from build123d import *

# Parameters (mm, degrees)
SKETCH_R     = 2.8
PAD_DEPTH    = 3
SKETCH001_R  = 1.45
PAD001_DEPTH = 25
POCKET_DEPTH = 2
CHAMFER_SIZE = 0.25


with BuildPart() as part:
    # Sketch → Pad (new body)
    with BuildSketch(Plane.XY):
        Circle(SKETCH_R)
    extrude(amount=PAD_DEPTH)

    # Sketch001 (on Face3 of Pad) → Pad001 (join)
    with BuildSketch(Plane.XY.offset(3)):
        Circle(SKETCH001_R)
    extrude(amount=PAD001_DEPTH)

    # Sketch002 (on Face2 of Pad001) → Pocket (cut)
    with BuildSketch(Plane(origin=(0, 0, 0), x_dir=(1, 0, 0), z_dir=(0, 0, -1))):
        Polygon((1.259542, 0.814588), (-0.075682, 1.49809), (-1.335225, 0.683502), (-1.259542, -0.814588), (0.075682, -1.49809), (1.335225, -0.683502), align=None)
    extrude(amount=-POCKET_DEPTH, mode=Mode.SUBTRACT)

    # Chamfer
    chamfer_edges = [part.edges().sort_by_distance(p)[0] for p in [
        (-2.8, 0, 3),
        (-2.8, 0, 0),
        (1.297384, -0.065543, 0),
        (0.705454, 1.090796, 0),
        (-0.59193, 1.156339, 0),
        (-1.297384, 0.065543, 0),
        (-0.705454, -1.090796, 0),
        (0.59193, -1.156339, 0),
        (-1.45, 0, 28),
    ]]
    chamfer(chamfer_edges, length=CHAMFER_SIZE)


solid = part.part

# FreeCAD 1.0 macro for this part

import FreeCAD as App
import Part
import Sketcher
from FreeCAD import Vector
Q = App.Units.Quantity


def edges_at(feature, points):
    """Names of the edges that pass closest to the given points."""
    edges = feature.Shape.Edges
    near = lambda p: min(range(len(edges)), key=lambda i: edges[i].distToShape(Part.Vertex(*p))[0])
    return sorted({f"Edge{near(p) + 1}" for p in points})


def add_polygon(sketch, points):
    """Adds a closed chain of lines whose ends are joined by coincident constraints."""
    first, n = sketch.GeometryCount, len(points)
    for a, b in zip(points, points[1:] + points[:1]):
        sketch.addGeometry(Part.LineSegment(App.Vector(*a, 0), App.Vector(*b, 0)), False)
    for i in range(n):
        sketch.addConstraint(Sketcher.Constraint("Coincident", first + i, 2, first + (i + 1) % n, 1))

doc = App.newDocument("Part")
body = doc.addObject("PartDesign::Body", "Body")

# Sketch on XY plane
sketch1 = body.newObject("Sketcher::SketchObject", "Sketch")
sketch1.AttachmentSupport = (doc.getObject("XY_Plane"), [""])
sketch1.MapMode = "FlatFace"
sketch1.addGeometry(Part.Circle(Vector(0, 0, 0), Vector(0, 0, 1), 2.8), False)
sketch1.addConstraint([
    Sketcher.Constraint("Coincident", 0, 3, -1, 1),
    Sketcher.Constraint("Diameter", 0, Q("5.6 mm")),
])
pad1 = body.newObject("PartDesign::Pad", "Pad")
pad1.Profile = sketch1
pad1.Length = 3

# Sketch on XY plane
sketch2 = body.newObject("Sketcher::SketchObject", "Sketch001")
sketch2.AttachmentSupport = (doc.getObject("XY_Plane"), [""])
sketch2.MapMode = "FlatFace"
sketch2.AttachmentOffset = App.Placement(Vector(0, 0, 3), App.Rotation())
sketch2.addGeometry(Part.Circle(Vector(0, 0, 0), Vector(0, 0, 1), 1.4), False)
sketch2.addConstraint([
    Sketcher.Constraint("Coincident", 0, 3, -1, 1),
    Sketcher.Constraint("Diameter", 0, Q("2.9 mm")),
])
pad2 = body.newObject("PartDesign::Pad", "Pad001")
pad2.Profile = sketch2
pad2.Length = 25

# Sketch on XY plane
sketch3 = body.newObject("Sketcher::SketchObject", "Sketch002")
sketch3.AttachmentSupport = (doc.getObject("XY_Plane"), [""])
sketch3.MapMode = "FlatFace"
add_polygon(sketch3, [(1.3, -0.8), (-0.1, -1.5), (-1.3, -0.7), (-1.3, 0.8), (0.1, 1.5), (1.3, 0.7)])  # lines 0-5
sketch3.addConstraint([
    Sketcher.Constraint("Symmetric", 0, 2, 3, 2, -1, 1),
    Sketcher.Constraint("Symmetric", 1, 2, 4, 2, -1, 1),
    Sketcher.Constraint("Symmetric", 2, 2, 5, 2, -1, 1),
    Sketcher.Constraint("Equal", 0, 1),
    Sketcher.Constraint("Equal", 1, 2),
    Sketcher.Constraint("Distance", 0, Q("1.499999 mm")),
    Sketcher.Constraint("DistanceY", 2, 2, 3, 2, Q("0.683502 mm")),
    Sketcher.Constraint("DistanceY", 0, 2, -1, 1, Q("1.49809 mm")),
    Sketcher.Constraint("DistanceX", 2, 2, -1, 1, Q("1.259542 mm")),
])
pocket1 = body.newObject("PartDesign::Pocket", "Pocket")
pocket1.Profile = sketch3
pocket1.Length = 2
pocket1.Reversed = True
doc.recompute()

chamfer = body.newObject("PartDesign::Chamfer", "Chamfer")
chamfer.Base = (pocket1, edges_at(pocket1, [
    (-2.8, 0, 3),
    (-2.8, 0, 0),
    (1.297, -0.066, 0),
    (0.705, 1.091, 0),
    (-0.592, 1.156, 0),
    (-1.297, 0.066, 0),
    (-0.705, -1.091, 0),
    (0.592, -1.156, 0),
    (-1.45, 0, 28),
]))
chamfer.Size = 0.25

doc.recompute()
